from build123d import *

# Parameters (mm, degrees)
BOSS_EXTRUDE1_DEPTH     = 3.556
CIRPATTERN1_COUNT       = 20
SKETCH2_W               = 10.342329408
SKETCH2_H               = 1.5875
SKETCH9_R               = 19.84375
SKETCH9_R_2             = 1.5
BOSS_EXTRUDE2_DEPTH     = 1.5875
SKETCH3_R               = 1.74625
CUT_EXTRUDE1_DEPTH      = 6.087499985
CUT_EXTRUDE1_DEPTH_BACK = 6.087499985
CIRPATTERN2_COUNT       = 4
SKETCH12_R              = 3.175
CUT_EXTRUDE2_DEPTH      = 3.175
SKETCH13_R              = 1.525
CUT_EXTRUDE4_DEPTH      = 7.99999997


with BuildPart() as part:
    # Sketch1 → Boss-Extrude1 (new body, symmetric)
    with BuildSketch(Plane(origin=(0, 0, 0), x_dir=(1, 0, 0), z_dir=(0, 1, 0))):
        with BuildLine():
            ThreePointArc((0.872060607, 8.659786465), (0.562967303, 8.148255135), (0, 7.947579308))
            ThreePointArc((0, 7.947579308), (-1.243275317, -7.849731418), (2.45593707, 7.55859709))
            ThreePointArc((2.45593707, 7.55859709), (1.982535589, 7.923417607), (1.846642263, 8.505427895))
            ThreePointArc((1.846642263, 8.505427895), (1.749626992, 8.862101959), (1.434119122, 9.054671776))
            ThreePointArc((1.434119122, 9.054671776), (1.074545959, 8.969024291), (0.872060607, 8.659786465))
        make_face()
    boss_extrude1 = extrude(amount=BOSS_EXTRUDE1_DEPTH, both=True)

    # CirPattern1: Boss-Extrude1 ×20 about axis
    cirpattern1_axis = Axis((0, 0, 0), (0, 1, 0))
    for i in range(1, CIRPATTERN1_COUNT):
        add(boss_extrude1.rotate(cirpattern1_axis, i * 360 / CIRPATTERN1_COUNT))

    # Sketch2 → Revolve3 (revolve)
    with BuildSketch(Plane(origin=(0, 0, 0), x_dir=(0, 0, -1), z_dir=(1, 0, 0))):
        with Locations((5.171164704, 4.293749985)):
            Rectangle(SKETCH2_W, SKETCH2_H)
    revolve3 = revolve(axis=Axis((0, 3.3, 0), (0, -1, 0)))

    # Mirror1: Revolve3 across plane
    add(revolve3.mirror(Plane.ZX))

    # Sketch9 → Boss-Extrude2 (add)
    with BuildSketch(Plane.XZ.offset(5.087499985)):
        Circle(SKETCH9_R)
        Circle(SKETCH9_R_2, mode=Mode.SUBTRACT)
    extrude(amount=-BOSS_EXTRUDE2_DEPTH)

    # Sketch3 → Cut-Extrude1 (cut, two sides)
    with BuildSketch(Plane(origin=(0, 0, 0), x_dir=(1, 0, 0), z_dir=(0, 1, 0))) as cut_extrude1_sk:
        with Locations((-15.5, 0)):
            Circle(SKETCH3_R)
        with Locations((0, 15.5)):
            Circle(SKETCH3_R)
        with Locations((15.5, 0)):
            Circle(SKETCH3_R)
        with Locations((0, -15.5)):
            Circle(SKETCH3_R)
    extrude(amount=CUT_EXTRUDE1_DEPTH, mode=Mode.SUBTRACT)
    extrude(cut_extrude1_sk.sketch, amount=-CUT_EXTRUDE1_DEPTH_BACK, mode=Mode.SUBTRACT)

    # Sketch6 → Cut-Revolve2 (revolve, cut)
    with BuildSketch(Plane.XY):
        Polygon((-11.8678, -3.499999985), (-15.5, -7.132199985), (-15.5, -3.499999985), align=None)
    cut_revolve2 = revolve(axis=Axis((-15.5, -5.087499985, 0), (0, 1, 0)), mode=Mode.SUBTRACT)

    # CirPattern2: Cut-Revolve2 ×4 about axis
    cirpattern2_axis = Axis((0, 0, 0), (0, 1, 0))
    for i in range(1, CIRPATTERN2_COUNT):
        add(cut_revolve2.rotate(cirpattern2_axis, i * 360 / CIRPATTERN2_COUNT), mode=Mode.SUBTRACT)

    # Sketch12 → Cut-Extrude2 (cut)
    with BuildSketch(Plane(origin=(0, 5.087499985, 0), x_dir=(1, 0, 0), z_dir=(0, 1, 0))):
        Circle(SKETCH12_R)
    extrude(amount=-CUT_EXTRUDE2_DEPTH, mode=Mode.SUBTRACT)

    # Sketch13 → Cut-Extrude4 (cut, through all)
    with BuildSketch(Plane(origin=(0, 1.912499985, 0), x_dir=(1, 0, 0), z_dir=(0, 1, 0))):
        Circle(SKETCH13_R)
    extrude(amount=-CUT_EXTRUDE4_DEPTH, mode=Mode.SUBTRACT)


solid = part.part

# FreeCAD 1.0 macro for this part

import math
import FreeCAD as App
import Part
import Sketcher
from FreeCAD import Vector
Q = App.Units.Quantity


def add_polygon(sketch, points):
    """Adds a closed chain of lines whose ends are joined by coincident constraints."""
    first, n = sketch.GeometryCount, len(points)
    for a, b in zip(points, points[1:] + points[:1]):
        sketch.addGeometry(Part.LineSegment(App.Vector(*a, 0), App.Vector(*b, 0)), False)
    for i in range(n):
        sketch.addConstraint(Sketcher.Constraint("Coincident", first + i, 2, first + (i + 1) % n, 1))

doc = App.newDocument("Part")
body = doc.addObject("PartDesign::Body", "Body")

# Sketch on XZ plane
sketch1 = doc.addObject("Sketcher::SketchObject", "Sketch")
body.addObject(sketch1)
sketch1.AttachmentSupport = (doc.XZ_Plane, [""])
sketch1.MapMode = "FlatFace"
sketch1.addGeometry([
    Part.ArcOfCircle(Part.Circle(Vector(0, -8.8, 0), Vector(0, 0, 1), 0.9), math.radians(12), math.radians(90)),  # 0
    Part.ArcOfCircle(Part.Circle(Vector(0, 0, 0), Vector(0, 0, 1), 7.9), math.radians(-72), math.radians(270)),  # 1
    Part.ArcOfCircle(Part.Circle(Vector(2.7, -8.4, 0), Vector(0, 0, 1), 0.9), math.radians(108), math.radians(186)),  # 2
    Part.ArcOfCircle(Part.Circle(Vector(1.3, -8.6, 0), Vector(0, 0, 1), 0.5), math.radians(-80), math.radians(6)),  # 3
    Part.ArcOfCircle(Part.Circle(Vector(1.4, -8.6, 0), Vector(0, 0, 1), 0.5), math.radians(-168), math.radians(-82)),  # 4
], False)
sketch1.addConstraint([
    Sketcher.Constraint("Tangent", 0, 2, 1, 2),
    Sketcher.Constraint("Tangent", 1, 1, 2, 1),
    Sketcher.Constraint("Tangent", 2, 2, 3, 2),
    Sketcher.Constraint("Coincident", 3, 1, 4, 2),
    Sketcher.Constraint("Tangent", 4, 1, 0, 1),
    Sketcher.Constraint("Coincident", 1, 3, -1, 1),
    Sketcher.Constraint("Equal", 0, 2),
    Sketcher.Constraint("Equal", 3, 4),
    Sketcher.Constraint("PointOnObject", 0, 3, -2),
    Sketcher.Constraint("Radius", 0, Q("0.89 mm")),
    Sketcher.Constraint("Radius", 3, Q("0.5 mm")),
    Sketcher.Constraint("Radius", 1, Q("7.947579 mm")),
    Sketcher.Constraint("DistanceY", 3, 3, 2, 2, Q("0.056399 mm")),
    Sketcher.Constraint("DistanceX", -1, 1, 3, 1, Q("1.434119 mm")),
    Sketcher.Constraint("DistanceY", 3, 1, -1, 1, Q("9.054672 mm")),
])
pad1 = doc.addObject("PartDesign::Pad", "Pad")
body.addObject(pad1)
pad1.Profile = sketch1
pad1.Length = Q("0.28 in")
pad1.Midplane = True
doc.recompute()

polarpattern = doc.addObject("PartDesign::PolarPattern", "PolarPattern")
body.addObject(polarpattern)
polarpattern.Originals = [pad1]
polarpattern.Axis = (doc.Y_Axis, [""])
polarpattern.Angle = 360
polarpattern.Occurrences = 20
body.Tip = polarpattern

# Sketch on YZ plane
sketch2 = doc.addObject("Sketcher::SketchObject", "Sketch001")
body.addObject(sketch2)
sketch2.AttachmentSupport = (doc.YZ_Plane, [""])
sketch2.MapMode = "FlatFace"
add_polygon(sketch2, [(5.1, 0), (3.5, 0), (3.5, -10.3), (5.1, -10.3)])  # lines 0-3
sketch2.addConstraint([
    Sketcher.Constraint("Horizontal", 0),
    Sketcher.Constraint("Vertical", 1),
    Sketcher.Constraint("Horizontal", 2),
    Sketcher.Constraint("Vertical", 3),
    Sketcher.Constraint("PointOnObject", 0, 2, -1),
    Sketcher.Constraint("DistanceX", 0, 2, 0, 1, Q("0.0625 in")),
    Sketcher.Constraint("DistanceY", 1, 2, 1, 1, Q("10.342329 mm")),
    Sketcher.Constraint("DistanceX", -1, 1, 0, 2, Q("3.5 mm")),
])
revolution = doc.addObject("PartDesign::Revolution", "Revolution")
body.addObject(revolution)
revolution.Profile = sketch2
revolution.ReferenceAxis = (sketch2, ["H_Axis"])
revolution.Angle = 360
doc.recompute()

mirrored = doc.addObject("PartDesign::Mirrored", "Mirrored")
body.addObject(mirrored)
mirrored.Originals = [revolution]
mirrored.MirrorPlane = (doc.XZ_Plane, [""])
body.Tip = mirrored

# Sketch on XZ plane
sketch3 = doc.addObject("Sketcher::SketchObject", "Sketch002")
body.addObject(sketch3)
sketch3.AttachmentSupport = (doc.XZ_Plane, [""])
sketch3.MapMode = "FlatFace"
sketch3.AttachmentOffset = App.Placement(Vector(0, 0, 5.0875), App.Rotation())
sketch3.addGeometry([
    Part.Circle(Vector(0, 0, 0), Vector(0, 0, 1), 19.8),
    Part.Circle(Vector(0, 0, 0), Vector(0, 0, 1), 1.5),
], False)
sketch3.addConstraint([
    Sketcher.Constraint("Coincident", 0, 3, -1, 1),
    Sketcher.Constraint("Coincident", 1, 3, -1, 1),
    Sketcher.Constraint("Diameter", 0, Q("1.5625 in")),
    Sketcher.Constraint("Diameter", 1, Q("3 mm")),
])
pad2 = doc.addObject("PartDesign::Pad", "Pad001")
body.addObject(pad2)
pad2.Profile = sketch3
pad2.Length = Q("0.0625 in")
pad2.Reversed = True

# Sketch on XZ plane
sketch4 = doc.addObject("Sketcher::SketchObject", "Sketch003")
body.addObject(sketch4)
sketch4.AttachmentSupport = (doc.XZ_Plane, [""])
sketch4.MapMode = "FlatFace"
sketch4.addGeometry([
    Part.Circle(Vector(-15.5, 0, 0), Vector(0, 0, 1), 1.7),
    Part.Circle(Vector(0, -15.5, 0), Vector(0, 0, 1), 1.7),
    Part.Circle(Vector(15.5, 0, 0), Vector(0, 0, 1), 1.7),
    Part.Circle(Vector(0, 15.5, 0), Vector(0, 0, 1), 1.7),
], False)
sketch4.addConstraint([
    Sketcher.Constraint("Equal", 0, 1),
    Sketcher.Constraint("Equal", 1, 2),
    Sketcher.Constraint("Equal", 2, 3),
    Sketcher.Constraint("Symmetric", 0, 3, 2, 3, -1, 1),
    Sketcher.Constraint("Symmetric", 1, 3, 3, 3, -1, 1),
    Sketcher.Constraint("PointOnObject", 0, 3, -1),
    Sketcher.Constraint("PointOnObject", 1, 3, -2),
    Sketcher.Constraint("Diameter", 0, Q("0.1375 in")),
    Sketcher.Constraint("DistanceX", 0, 3, -1, 1, Q("15.5 mm")),
    Sketcher.Constraint("DistanceY", 1, 3, -1, 1, Q("15.5 mm")),
])
pocket1 = doc.addObject("PartDesign::Pocket", "Pocket")
body.addObject(pocket1)
pocket1.Profile = sketch4
pocket1.Type = "ThroughAll"
pocket1.Midplane = True

# Sketch on XY plane
sketch5 = doc.addObject("Sketcher::SketchObject", "Sketch004")
body.addObject(sketch5)
sketch5.AttachmentSupport = (doc.XY_Plane, [""])
sketch5.MapMode = "FlatFace"
add_polygon(sketch5, [(-15.5, -7.1), (-11.9, -3.5), (-15.5, -3.5)])  # lines 0-2
sketch5.addGeometry(Part.LineSegment(Vector(-15.5, -7.1, 0), Vector(-15.5, -3.5, 0)), True)  # axis
sketch5.addConstraint([
    Sketcher.Constraint("Horizontal", 1),
    Sketcher.Constraint("Vertical", 2),
    Sketcher.Constraint("Vertical", 3),
    Sketcher.Constraint("Coincident", 3, 1, 2, 2),
    Sketcher.Constraint("Horizontal", 0, 2, 3, 2),
    Sketcher.Constraint("Equal", 1, 2),
    Sketcher.Constraint("DistanceX", 1, 2, 1, 1, Q("0.143 in")),
    Sketcher.Constraint("DistanceX", 0, 2, -1, 1, Q("11.8678 mm")),
    Sketcher.Constraint("DistanceY", 0, 2, -1, 1, Q("3.5 mm")),
])
groove = doc.addObject("PartDesign::Groove", "Groove")
body.addObject(groove)
groove.Profile = sketch5
groove.ReferenceAxis = (sketch5, ["Axis0"])
groove.Angle = 360
doc.recompute()

polarpattern2 = doc.addObject("PartDesign::PolarPattern", "PolarPattern001")
body.addObject(polarpattern2)
polarpattern2.Originals = [groove]
polarpattern2.Axis = (doc.Y_Axis, [""])
polarpattern2.Angle = 360
polarpattern2.Occurrences = 4
body.Tip = polarpattern2

# Sketch on XZ plane
sketch6 = doc.addObject("Sketcher::SketchObject", "Sketch005")
body.addObject(sketch6)
sketch6.AttachmentSupport = (doc.XZ_Plane, [""])
sketch6.MapMode = "FlatFace"
sketch6.AttachmentOffset = App.Placement(Vector(0, 0, -5.0875), App.Rotation())
sketch6.addGeometry(Part.Circle(Vector(0, 0, 0), Vector(0, 0, 1), 3.2), False)
sketch6.addConstraint([
    Sketcher.Constraint("Coincident", 0, 3, -1, 1),
    Sketcher.Constraint("Diameter", 0, Q("0.25 in")),
])
pocket2 = doc.addObject("PartDesign::Pocket", "Pocket001")
body.addObject(pocket2)
pocket2.Profile = sketch6
pocket2.Length = Q("0.125 in")
pocket2.Reversed = True

# Sketch on XZ plane
sketch7 = doc.addObject("Sketcher::SketchObject", "Sketch006")
body.addObject(sketch7)
sketch7.AttachmentSupport = (doc.XZ_Plane, [""])
sketch7.MapMode = "FlatFace"
sketch7.AttachmentOffset = App.Placement(Vector(0, 0, -1.9125), App.Rotation())
sketch7.addGeometry(Part.Circle(Vector(0, 0, 0), Vector(0, 0, 1), 1.5), False)
sketch7.addConstraint([
    Sketcher.Constraint("Coincident", 0, 3, -1, 1),
    Sketcher.Constraint("Diameter", 0, Q("3.05 mm")),
])
pocket3 = doc.addObject("PartDesign::Pocket", "Pocket002")
body.addObject(pocket3)
pocket3.Profile = sketch7
pocket3.Type = "ThroughAll"
pocket3.Reversed = True

doc.recompute()
